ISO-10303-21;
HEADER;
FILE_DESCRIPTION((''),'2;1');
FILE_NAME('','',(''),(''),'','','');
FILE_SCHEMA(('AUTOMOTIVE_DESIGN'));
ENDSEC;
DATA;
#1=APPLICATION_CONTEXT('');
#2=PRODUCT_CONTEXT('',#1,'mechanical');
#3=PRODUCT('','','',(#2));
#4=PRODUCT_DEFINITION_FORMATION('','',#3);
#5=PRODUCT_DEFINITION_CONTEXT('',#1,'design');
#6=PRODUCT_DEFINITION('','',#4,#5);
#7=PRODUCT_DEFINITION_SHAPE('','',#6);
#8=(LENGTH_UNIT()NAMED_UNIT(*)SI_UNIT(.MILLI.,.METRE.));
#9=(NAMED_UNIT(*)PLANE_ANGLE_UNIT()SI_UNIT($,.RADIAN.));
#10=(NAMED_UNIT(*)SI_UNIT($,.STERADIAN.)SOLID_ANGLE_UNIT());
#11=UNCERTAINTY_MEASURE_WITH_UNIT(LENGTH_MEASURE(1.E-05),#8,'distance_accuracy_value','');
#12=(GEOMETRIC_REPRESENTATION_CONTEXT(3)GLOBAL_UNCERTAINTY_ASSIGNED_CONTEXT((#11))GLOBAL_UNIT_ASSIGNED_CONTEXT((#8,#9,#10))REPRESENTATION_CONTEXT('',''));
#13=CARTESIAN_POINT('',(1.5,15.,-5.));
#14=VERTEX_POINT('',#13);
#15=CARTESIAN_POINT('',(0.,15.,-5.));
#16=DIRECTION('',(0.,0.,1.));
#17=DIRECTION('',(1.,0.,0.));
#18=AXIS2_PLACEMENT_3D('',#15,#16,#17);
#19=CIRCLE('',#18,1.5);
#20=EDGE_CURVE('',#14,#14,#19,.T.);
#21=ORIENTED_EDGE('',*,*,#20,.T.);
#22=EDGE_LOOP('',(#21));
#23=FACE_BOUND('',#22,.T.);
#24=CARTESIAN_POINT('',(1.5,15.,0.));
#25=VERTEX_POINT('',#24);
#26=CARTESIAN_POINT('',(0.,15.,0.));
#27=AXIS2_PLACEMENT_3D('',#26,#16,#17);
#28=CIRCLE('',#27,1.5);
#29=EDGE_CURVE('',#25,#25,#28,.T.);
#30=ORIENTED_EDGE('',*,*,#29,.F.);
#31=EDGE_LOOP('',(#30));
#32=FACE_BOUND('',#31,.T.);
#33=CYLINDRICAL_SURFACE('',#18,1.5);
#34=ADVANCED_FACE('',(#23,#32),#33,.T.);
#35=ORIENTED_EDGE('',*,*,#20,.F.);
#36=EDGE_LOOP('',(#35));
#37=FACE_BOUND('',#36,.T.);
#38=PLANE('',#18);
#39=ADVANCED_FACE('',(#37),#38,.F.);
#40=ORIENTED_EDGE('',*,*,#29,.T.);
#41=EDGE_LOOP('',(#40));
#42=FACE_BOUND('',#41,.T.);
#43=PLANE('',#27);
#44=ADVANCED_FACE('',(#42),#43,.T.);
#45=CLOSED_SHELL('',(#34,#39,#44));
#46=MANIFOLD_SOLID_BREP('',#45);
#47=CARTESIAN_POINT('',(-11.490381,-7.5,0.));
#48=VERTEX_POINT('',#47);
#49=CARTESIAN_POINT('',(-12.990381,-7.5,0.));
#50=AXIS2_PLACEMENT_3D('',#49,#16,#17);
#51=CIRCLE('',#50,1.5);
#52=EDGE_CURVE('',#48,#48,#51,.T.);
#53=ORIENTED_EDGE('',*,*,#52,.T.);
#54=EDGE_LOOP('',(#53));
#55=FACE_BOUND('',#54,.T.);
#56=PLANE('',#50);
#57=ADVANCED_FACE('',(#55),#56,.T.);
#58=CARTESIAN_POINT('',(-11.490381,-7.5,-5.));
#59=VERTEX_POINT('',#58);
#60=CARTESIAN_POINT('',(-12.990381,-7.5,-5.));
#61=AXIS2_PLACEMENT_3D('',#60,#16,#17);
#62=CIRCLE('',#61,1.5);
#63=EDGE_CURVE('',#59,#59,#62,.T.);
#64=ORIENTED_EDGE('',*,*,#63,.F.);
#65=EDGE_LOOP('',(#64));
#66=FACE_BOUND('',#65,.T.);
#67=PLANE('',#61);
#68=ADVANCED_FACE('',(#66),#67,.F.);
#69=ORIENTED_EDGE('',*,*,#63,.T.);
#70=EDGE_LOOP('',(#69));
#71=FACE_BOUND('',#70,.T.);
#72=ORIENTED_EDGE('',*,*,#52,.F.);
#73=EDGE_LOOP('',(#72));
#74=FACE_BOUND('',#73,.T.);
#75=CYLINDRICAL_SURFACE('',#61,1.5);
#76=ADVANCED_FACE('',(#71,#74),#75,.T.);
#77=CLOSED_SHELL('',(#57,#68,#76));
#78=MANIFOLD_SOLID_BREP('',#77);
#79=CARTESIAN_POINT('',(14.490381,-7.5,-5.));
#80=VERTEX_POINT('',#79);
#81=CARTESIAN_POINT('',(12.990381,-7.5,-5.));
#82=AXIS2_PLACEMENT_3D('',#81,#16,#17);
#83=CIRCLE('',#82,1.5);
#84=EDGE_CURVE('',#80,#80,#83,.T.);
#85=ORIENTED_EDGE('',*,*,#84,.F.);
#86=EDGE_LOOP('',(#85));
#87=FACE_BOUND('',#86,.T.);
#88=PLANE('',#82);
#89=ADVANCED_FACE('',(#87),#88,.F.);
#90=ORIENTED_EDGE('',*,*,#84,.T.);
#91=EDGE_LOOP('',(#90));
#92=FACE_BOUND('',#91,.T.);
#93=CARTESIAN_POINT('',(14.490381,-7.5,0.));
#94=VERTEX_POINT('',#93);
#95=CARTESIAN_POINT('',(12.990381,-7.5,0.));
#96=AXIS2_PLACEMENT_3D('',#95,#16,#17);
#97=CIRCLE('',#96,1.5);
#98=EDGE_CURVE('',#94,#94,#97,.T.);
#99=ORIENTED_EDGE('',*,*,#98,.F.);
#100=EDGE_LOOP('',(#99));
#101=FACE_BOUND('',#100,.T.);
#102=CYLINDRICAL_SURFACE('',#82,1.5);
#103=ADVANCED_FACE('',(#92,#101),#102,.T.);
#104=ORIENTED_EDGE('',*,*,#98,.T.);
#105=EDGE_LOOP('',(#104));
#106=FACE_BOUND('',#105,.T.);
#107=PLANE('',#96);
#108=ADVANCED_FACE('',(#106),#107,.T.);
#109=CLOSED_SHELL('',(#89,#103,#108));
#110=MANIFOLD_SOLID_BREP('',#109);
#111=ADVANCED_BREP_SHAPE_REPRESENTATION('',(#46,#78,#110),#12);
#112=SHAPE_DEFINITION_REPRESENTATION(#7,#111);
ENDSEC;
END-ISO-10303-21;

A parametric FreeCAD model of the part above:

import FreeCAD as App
import Part
import Sketcher

doc = App.newDocument("Part")
body = doc.addObject("PartDesign::Body", "Body")

# Sketch on XY plane
sketch1 = body.newObject("Sketcher::SketchObject", "Sketch")
sketch1.AttachmentSupport = (doc.getObject("XY_Plane"), [""])
sketch1.MapMode = "FlatFace"
sketch1.addGeometry(Part.Circle(App.Vector(0, 15, 0), App.Vector(0, 0, 1), 1.5), False)
sketch1.addConstraint(Sketcher.Constraint("PointOnObject", 0, 3, -2))
sketch1.addConstraint(Sketcher.Constraint("Diameter", 0, 3.0))
sketch1.addConstraint(Sketcher.Constraint("DistanceY", -1, 1, 0, 3, 15.0))
pad1 = body.newObject("PartDesign::Pad", "Pad")
pad1.Profile = sketch1
pad1.Length = 5
pad1.Reversed = True
body2 = doc.addObject("PartDesign::Body", "Body001")

# Sketch on XY plane
sketch2 = body2.newObject("Sketcher::SketchObject", "Sketch001")
sketch2.AttachmentSupport = (doc.getObject("XY_Plane001"), [""])
sketch2.MapMode = "FlatFace"
sketch2.addGeometry(Part.Circle(App.Vector(13, -7.5, 0), App.Vector(0, 0, 1), 1.5), False)
sketch2.addConstraint(Sketcher.Constraint("Diameter", 0, 3.0))
sketch2.addConstraint(Sketcher.Constraint("DistanceY", 0, 3, -1, 1, 7.5))
sketch2.addConstraint(Sketcher.Constraint("DistanceX", -1, 1, 0, 3, 12.990381))
pad2 = body2.newObject("PartDesign::Pad", "Pad001")
pad2.Profile = sketch2
pad2.Length = 5
pad2.Reversed = True
body3 = doc.addObject("PartDesign::Body", "Body002")

# Sketch on XY plane
sketch3 = body3.newObject("Sketcher::SketchObject", "Sketch002")
sketch3.AttachmentSupport = (doc.getObject("XY_Plane002"), [""])
sketch3.MapMode = "FlatFace"
sketch3.addGeometry(Part.Circle(App.Vector(-13, -7.5, 0), App.Vector(0, 0, 1), 1.5), False)
sketch3.addConstraint(Sketcher.Constraint("Diameter", 0, 3.0))
sketch3.addConstraint(Sketcher.Constraint("DistanceY", 0, 3, -1, 1, 7.5))
sketch3.addConstraint(Sketcher.Constraint("DistanceX", 0, 3, -1, 1, 12.990381))
pad3 = body3.newObject("PartDesign::Pad", "Pad002")
pad3.Profile = sketch3
pad3.Length = 5
pad3.Reversed = True

doc.recompute()
